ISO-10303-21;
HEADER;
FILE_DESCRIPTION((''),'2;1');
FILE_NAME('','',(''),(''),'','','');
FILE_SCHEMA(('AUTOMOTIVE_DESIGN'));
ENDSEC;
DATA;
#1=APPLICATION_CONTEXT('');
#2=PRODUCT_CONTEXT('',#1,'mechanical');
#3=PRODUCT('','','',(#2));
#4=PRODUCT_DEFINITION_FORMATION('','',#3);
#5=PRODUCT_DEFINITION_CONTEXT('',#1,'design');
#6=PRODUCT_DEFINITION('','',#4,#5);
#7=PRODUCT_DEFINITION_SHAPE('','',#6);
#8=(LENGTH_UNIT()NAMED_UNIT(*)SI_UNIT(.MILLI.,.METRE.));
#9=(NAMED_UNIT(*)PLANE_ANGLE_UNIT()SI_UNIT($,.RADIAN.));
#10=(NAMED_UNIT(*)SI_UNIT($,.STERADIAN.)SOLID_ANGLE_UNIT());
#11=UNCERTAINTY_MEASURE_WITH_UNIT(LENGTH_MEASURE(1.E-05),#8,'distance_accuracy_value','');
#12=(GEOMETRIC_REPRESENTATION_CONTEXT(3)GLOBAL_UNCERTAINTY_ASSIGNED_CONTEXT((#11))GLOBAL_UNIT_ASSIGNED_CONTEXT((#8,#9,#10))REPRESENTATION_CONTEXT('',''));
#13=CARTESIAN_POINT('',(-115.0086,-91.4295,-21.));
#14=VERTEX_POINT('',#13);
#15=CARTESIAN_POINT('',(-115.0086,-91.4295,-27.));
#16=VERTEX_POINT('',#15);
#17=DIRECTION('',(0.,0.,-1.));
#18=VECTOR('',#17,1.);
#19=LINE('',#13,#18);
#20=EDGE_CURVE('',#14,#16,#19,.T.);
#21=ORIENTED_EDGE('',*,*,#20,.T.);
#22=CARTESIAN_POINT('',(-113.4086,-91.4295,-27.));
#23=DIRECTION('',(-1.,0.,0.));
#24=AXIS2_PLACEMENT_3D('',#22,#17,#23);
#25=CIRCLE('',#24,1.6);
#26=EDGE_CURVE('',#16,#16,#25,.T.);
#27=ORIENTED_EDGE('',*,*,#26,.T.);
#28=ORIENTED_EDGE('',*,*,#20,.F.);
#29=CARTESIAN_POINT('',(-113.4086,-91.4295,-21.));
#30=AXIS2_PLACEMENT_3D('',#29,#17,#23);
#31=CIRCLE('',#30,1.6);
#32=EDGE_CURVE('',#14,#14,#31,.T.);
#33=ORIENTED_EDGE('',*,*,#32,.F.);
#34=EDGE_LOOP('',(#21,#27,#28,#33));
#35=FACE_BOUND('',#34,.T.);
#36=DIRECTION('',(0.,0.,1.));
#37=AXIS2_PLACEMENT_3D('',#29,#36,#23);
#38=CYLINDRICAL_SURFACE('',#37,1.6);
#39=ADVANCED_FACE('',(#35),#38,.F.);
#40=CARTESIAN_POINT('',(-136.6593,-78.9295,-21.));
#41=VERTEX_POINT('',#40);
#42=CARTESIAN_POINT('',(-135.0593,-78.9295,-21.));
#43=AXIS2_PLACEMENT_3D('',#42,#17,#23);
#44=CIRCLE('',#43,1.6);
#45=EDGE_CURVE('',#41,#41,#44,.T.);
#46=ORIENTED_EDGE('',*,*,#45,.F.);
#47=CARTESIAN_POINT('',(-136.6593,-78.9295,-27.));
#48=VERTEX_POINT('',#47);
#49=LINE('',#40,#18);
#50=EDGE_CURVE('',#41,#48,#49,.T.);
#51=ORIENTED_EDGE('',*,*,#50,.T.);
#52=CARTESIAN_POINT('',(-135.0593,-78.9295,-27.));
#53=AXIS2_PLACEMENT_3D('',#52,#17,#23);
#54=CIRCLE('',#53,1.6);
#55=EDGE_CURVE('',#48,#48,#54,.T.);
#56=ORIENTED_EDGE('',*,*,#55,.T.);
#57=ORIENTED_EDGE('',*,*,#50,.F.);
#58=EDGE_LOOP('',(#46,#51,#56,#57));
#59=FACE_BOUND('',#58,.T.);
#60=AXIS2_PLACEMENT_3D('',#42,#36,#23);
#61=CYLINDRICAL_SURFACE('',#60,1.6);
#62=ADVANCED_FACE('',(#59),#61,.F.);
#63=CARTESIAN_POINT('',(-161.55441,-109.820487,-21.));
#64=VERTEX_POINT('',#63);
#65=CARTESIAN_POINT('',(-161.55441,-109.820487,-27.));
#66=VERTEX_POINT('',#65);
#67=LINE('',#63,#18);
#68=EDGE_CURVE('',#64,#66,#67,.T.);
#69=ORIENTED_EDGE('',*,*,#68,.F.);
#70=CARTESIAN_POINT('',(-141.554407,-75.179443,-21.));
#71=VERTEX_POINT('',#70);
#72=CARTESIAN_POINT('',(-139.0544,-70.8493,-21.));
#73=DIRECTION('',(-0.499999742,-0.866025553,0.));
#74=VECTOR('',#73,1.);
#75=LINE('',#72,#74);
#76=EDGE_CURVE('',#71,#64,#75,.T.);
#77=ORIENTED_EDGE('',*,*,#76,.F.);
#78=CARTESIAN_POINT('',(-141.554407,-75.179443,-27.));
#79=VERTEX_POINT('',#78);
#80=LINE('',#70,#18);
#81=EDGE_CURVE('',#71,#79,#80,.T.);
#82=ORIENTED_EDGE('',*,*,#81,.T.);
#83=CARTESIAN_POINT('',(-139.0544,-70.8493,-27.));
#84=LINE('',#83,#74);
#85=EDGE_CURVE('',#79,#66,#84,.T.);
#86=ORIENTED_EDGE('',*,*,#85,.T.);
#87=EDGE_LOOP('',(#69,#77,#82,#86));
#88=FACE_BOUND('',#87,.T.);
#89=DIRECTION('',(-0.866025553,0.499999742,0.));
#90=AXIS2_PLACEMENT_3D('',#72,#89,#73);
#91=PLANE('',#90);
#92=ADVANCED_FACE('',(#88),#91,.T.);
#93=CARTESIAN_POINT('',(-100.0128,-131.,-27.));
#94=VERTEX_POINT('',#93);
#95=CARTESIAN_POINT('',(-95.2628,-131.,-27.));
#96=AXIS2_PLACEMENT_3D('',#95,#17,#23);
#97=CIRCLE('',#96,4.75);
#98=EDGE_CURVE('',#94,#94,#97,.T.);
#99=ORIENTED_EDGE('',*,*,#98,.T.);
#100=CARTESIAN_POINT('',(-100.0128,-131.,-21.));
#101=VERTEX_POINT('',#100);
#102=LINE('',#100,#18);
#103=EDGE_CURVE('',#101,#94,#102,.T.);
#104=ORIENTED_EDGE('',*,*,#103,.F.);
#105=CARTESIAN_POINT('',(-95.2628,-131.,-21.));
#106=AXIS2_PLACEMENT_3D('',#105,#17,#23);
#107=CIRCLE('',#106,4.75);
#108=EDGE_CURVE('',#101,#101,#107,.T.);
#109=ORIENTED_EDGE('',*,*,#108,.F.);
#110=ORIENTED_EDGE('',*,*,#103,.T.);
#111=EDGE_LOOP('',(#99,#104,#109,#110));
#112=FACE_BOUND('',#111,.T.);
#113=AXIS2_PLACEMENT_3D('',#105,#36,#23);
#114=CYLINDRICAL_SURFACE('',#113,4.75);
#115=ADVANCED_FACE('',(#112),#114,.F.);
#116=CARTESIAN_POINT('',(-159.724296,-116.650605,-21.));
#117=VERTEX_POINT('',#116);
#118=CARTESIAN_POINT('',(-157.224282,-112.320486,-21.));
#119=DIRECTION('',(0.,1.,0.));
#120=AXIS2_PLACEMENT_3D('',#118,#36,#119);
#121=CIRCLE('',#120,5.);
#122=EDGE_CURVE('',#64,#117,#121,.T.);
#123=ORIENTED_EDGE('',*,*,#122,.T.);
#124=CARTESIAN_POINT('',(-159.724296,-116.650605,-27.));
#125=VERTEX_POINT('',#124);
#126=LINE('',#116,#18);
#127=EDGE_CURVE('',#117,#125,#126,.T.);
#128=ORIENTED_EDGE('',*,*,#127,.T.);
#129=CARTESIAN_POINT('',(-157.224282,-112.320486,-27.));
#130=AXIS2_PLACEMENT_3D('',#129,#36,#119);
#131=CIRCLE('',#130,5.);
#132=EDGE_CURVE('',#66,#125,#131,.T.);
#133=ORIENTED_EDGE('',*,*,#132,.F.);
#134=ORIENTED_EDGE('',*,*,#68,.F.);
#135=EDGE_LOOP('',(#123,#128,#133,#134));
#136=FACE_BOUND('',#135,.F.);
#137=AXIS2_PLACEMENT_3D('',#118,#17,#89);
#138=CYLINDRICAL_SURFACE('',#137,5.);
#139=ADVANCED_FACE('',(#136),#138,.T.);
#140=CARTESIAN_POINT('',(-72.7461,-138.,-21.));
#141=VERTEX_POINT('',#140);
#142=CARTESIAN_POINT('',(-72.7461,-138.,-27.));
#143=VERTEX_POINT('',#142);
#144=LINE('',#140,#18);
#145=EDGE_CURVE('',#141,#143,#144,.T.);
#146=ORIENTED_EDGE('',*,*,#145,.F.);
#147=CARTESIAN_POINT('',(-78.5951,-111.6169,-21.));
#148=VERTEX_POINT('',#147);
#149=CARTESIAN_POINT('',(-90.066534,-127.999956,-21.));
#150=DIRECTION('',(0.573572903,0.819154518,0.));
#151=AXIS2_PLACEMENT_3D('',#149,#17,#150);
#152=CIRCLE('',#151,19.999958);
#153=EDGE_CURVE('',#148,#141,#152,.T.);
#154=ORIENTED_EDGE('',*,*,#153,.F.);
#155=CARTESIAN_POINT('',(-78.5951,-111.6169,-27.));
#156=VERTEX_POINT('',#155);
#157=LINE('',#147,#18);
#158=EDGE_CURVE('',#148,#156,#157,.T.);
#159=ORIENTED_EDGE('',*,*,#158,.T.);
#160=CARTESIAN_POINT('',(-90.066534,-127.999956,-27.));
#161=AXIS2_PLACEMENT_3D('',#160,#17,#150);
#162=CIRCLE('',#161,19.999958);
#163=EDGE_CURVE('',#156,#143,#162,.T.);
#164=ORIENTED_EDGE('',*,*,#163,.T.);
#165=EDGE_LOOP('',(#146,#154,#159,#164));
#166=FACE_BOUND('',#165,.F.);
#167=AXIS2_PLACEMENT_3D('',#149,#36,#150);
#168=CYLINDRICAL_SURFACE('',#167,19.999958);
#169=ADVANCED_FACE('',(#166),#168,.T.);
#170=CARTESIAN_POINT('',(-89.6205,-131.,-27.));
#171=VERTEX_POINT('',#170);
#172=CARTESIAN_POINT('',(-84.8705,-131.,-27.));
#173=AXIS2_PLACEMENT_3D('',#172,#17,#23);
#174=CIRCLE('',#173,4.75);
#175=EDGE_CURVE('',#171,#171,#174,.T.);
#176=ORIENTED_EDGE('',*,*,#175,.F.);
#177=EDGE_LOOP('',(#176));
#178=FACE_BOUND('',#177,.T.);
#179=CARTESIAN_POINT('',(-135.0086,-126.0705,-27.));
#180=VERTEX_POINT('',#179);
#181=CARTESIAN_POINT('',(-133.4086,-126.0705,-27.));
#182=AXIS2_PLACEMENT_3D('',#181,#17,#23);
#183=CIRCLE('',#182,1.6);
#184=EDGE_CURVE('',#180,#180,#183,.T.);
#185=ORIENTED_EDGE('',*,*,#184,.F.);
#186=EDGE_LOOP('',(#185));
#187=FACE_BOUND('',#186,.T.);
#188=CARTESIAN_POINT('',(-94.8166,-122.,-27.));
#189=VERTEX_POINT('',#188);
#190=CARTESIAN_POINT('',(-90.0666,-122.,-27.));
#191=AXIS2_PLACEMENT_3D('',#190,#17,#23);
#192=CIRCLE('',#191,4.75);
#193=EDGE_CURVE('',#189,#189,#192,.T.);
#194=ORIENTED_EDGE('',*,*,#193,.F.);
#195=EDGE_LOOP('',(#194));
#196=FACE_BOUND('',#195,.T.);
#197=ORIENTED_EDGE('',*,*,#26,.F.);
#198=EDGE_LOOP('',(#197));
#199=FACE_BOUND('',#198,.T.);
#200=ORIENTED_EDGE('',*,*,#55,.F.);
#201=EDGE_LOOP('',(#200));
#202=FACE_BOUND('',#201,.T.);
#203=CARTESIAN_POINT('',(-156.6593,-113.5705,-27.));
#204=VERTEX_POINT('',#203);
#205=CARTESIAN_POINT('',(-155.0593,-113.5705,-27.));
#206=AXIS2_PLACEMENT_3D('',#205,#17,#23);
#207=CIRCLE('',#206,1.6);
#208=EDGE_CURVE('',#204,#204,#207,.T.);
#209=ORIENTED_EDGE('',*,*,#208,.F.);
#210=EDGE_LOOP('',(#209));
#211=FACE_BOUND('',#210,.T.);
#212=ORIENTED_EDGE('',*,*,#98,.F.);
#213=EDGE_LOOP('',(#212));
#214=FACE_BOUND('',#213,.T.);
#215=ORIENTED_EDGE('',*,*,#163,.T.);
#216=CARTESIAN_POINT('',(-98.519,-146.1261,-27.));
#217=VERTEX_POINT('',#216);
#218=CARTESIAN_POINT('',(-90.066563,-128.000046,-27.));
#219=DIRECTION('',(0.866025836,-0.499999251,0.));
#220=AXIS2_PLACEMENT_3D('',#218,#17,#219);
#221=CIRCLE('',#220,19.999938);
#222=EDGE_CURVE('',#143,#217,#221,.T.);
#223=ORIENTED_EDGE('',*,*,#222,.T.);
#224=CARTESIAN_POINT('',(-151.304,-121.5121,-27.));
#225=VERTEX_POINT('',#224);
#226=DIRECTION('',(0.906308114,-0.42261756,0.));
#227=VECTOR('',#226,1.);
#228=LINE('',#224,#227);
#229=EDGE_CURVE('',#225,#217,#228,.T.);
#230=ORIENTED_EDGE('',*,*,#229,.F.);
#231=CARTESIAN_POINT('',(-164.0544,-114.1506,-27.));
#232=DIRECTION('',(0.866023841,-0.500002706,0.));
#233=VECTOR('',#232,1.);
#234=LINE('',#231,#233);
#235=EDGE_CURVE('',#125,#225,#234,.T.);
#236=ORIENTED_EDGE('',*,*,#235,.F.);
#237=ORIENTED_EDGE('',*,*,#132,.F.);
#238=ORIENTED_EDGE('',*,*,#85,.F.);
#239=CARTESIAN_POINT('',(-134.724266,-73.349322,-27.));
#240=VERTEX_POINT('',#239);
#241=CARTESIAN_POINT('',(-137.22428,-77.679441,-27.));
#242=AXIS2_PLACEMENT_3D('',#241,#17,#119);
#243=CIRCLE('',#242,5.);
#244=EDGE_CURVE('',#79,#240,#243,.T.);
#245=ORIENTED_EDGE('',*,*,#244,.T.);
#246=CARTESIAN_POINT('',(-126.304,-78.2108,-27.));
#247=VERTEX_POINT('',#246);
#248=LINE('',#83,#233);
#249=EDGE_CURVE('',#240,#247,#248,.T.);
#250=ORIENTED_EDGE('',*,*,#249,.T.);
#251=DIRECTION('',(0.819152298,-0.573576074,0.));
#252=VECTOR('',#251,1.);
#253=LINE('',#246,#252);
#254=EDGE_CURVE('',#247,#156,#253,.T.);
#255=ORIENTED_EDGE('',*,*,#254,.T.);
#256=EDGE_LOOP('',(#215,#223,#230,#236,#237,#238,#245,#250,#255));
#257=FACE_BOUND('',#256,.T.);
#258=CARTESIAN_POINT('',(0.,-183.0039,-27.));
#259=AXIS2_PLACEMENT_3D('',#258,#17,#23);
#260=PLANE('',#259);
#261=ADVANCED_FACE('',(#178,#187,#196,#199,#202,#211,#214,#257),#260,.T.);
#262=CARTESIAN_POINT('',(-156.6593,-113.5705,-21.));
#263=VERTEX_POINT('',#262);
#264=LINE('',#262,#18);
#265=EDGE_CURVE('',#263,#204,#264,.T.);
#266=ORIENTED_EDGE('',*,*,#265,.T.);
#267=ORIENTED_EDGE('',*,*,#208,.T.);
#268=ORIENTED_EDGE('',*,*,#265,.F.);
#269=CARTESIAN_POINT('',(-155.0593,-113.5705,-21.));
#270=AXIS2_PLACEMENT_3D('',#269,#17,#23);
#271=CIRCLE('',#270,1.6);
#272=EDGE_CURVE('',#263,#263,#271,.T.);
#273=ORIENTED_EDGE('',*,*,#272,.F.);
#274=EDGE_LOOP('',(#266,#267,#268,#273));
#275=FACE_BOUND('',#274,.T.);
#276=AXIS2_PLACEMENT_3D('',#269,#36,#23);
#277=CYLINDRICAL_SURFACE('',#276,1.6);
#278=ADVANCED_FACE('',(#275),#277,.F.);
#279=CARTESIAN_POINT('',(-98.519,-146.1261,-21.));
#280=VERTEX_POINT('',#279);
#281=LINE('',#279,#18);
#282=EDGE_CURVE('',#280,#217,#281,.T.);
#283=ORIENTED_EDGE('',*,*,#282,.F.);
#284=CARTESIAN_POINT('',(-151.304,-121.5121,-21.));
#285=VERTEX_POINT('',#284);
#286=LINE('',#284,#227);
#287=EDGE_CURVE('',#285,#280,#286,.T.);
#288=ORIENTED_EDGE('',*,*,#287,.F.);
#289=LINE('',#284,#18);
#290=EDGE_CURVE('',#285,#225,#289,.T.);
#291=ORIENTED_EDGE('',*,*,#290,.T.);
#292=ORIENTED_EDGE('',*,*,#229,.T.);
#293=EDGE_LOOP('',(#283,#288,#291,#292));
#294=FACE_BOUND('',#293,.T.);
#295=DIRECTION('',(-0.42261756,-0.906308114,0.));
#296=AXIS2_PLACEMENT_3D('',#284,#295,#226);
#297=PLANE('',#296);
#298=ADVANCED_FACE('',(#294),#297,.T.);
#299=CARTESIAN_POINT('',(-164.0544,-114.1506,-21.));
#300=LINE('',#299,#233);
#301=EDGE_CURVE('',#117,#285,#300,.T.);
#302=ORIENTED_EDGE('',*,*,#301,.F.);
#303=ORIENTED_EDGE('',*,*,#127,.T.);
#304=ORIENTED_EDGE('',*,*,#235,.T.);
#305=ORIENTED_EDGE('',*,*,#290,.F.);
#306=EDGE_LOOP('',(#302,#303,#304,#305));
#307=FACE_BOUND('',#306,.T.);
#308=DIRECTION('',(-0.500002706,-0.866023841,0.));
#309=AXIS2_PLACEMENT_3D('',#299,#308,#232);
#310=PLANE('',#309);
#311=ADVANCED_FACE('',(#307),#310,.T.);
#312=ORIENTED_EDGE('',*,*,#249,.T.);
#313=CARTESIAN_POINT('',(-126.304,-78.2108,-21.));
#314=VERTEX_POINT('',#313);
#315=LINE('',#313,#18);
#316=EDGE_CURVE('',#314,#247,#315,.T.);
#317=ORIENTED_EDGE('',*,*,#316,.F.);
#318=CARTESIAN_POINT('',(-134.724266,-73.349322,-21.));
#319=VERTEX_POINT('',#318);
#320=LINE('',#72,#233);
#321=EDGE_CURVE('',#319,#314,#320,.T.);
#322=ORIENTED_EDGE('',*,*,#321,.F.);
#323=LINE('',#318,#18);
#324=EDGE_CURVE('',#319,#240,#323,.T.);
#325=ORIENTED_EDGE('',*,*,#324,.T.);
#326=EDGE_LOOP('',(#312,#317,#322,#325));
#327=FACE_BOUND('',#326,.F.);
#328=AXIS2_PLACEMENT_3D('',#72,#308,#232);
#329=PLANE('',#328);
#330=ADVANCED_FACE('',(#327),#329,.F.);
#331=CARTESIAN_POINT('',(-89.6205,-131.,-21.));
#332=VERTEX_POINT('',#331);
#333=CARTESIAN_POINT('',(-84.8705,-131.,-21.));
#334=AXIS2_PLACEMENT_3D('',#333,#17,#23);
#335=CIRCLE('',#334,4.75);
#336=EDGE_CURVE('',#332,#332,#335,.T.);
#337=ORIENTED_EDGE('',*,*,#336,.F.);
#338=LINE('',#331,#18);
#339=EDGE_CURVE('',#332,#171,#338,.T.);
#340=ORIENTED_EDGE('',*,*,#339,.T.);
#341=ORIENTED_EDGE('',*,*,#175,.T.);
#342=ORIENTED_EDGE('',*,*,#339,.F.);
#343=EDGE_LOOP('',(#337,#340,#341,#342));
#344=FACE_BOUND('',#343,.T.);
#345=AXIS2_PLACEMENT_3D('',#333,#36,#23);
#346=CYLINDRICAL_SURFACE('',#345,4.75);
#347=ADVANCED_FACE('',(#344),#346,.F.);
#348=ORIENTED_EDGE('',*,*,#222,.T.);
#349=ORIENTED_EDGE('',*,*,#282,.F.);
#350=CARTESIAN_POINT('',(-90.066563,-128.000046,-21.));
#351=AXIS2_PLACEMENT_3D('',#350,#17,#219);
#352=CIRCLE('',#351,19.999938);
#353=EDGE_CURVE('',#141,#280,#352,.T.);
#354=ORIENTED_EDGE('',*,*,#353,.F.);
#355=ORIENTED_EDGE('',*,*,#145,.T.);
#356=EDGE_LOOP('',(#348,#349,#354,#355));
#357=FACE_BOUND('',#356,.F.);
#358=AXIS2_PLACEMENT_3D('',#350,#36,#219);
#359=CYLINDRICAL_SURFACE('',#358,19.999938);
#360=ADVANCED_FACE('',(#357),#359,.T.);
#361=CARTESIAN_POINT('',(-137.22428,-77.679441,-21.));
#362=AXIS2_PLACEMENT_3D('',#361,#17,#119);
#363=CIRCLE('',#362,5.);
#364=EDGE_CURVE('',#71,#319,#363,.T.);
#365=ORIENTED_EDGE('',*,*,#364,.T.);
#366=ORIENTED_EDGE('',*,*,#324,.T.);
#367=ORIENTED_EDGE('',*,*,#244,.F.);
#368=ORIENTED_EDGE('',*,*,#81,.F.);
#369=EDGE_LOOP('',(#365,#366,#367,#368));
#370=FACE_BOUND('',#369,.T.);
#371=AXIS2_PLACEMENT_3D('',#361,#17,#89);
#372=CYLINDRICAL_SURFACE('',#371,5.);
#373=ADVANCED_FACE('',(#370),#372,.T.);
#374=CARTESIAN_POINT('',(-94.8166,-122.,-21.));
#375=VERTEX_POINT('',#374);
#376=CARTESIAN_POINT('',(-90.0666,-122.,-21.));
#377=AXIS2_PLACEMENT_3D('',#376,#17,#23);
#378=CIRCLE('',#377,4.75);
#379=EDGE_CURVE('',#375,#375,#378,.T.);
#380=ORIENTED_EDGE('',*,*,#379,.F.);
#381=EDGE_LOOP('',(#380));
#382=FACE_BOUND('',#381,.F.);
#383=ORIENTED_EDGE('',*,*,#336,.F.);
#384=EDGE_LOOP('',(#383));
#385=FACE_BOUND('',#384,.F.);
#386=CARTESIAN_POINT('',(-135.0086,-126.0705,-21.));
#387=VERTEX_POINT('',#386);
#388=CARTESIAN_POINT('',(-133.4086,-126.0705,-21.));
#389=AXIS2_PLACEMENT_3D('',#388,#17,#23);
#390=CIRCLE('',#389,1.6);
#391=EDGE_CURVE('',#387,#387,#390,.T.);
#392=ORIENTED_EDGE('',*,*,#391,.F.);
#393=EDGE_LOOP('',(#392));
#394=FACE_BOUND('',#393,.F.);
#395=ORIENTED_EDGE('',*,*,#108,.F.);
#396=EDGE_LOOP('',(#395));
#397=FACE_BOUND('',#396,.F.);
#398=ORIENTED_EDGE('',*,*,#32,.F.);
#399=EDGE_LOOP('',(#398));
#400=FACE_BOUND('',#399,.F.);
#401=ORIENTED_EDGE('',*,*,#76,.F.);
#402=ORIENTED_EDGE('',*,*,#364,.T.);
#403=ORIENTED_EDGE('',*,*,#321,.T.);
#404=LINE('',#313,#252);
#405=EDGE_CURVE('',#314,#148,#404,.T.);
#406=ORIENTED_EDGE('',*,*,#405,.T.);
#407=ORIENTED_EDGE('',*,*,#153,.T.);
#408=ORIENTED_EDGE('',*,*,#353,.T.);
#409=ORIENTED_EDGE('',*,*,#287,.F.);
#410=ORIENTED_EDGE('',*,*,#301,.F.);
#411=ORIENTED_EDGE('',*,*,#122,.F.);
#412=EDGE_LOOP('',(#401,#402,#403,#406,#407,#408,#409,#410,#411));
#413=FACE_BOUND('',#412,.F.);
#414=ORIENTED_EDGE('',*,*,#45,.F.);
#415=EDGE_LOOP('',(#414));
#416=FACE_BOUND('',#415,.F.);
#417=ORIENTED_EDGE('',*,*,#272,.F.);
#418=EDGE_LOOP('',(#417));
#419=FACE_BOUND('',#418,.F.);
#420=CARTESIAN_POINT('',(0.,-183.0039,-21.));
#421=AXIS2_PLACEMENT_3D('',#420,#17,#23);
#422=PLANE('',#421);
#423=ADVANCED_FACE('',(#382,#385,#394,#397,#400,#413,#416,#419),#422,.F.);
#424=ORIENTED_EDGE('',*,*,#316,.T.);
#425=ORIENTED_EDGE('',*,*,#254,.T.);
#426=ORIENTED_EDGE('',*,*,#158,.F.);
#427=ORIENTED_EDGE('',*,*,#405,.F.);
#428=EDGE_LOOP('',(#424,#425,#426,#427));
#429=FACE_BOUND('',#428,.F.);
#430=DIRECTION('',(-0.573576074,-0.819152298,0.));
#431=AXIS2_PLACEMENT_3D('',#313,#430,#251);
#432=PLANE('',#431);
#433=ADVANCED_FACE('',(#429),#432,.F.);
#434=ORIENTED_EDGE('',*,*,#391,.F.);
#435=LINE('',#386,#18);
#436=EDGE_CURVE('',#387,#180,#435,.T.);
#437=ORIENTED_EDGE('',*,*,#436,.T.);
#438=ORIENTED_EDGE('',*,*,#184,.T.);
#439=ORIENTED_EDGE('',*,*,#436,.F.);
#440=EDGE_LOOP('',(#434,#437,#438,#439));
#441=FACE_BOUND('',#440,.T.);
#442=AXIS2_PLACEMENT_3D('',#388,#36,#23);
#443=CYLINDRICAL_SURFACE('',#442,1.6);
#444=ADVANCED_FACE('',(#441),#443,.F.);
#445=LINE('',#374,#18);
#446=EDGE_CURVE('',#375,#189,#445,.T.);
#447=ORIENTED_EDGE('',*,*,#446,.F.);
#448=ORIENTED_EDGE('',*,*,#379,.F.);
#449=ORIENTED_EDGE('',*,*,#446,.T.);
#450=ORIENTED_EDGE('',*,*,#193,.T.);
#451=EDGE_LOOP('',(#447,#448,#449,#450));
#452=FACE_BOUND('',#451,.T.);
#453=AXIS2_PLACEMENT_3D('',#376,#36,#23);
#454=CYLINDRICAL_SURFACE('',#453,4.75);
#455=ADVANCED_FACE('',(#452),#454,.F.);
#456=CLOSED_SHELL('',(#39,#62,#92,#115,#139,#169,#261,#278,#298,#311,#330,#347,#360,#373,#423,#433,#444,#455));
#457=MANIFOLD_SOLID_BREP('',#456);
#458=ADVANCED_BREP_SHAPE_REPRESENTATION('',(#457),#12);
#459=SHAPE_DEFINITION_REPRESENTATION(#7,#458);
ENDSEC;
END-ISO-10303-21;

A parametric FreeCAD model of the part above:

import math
import FreeCAD as App
import Part
import Sketcher

V = App.Vector
Q = App.Units.Quantity


def edges_at(feature, points):
    """Names of the edges that pass closest to the given points."""
    edges = feature.Shape.Edges
    near = lambda p: min(range(len(edges)), key=lambda i: edges[i].distToShape(Part.Vertex(*p))[0])
    return sorted({f"Edge{near(p) + 1}" for p in points})

doc = App.newDocument("Part")
params = doc.addObject("Spreadsheet::Sheet", "Params")
for row, (alias, value) in enumerate([
    ("sketch1_radius", "20 mm"),
    ("sketch1_diameter", "9.5 mm"),
    ("sketch1_diameter2", "3.2 mm"),
    ("pad1_length", "6 mm"),
    ("fillet_radius", "5 mm"),
], start=1):
    params.set(f"A{row}", alias)
    params.set(f"B{row}", "=" + value)
    params.setAlias(f"B{row}", alias)

body = doc.addObject("PartDesign::Body", "Body")

sketch1 = body.newObject("Sketcher::SketchObject", "Sketch")
sketch1.AttachmentSupport = (doc.getObject("XY_Plane"), [""])
sketch1.MapMode = "FlatFace"
sketch1.AttachmentOffset = App.Placement(V(0, 0, -21), App.Rotation())
sketch1.addGeometry([
    Part.LineSegment(V(-164.1, -114.2, 0), V(-139.1, -70.8, 0)),
    Part.LineSegment(V(-139.1, -70.8, 0), V(-126.3, -78.2, 0)),
    Part.LineSegment(V(-126.3, -78.2, 0), V(-78.6, -111.6, 0)),
    Part.ArcOfCircle(Part.Circle(V(-90.1, -128, 0), V(0, 0, 1), 20), math.radians(-30), math.radians(55)),
    Part.ArcOfCircle(Part.Circle(V(-90.1, -128, 0), V(0, 0, 1), 20), math.radians(-115), math.radians(-30)),
    Part.LineSegment(V(-98.5, -146.1, 0), V(-151.3, -121.5, 0)),
    Part.LineSegment(V(-151.3, -121.5, 0), V(-164.1, -114.2, 0)),
    Part.Circle(V(-84.9, -131, 0), V(0, 0, 1), 4.8),
    Part.Circle(V(-95.3, -131, 0), V(0, 0, 1), 4.8),
    Part.Circle(V(-90.1, -122, 0), V(0, 0, 1), 4.8),
    Part.Circle(V(-133.4, -126.1, 0), V(0, 0, 1), 1.6),
    Part.Circle(V(-155.1, -113.6, 0), V(0, 0, 1), 1.6),
    Part.Circle(V(-113.4, -91.4, 0), V(0, 0, 1), 1.6),
    Part.Circle(V(-135.1, -78.9, 0), V(0, 0, 1), 1.6),
], False)
sketch1.addConstraint([
    Sketcher.Constraint("Coincident", 0, 2, 1, 1),
    Sketcher.Constraint("Coincident", 1, 2, 2, 1),
    Sketcher.Constraint("Tangent", 2, 2, 3, 2),
    Sketcher.Constraint("Tangent", 3, 1, 4, 2),
    Sketcher.Constraint("Tangent", 4, 1, 5, 1),
    Sketcher.Constraint("Coincident", 5, 2, 6, 1),
    Sketcher.Constraint("Coincident", 6, 2, 0, 1),
    Sketcher.Constraint("Equal", 3, 4),
    Sketcher.Constraint("Equal", 7, 8),
    Sketcher.Constraint("Equal", 8, 9),
    Sketcher.Constraint("Equal", 10, 11),
    Sketcher.Constraint("Equal", 11, 12),
    Sketcher.Constraint("Equal", 12, 13),
    Sketcher.Constraint("Perpendicular", 0, 1),
    Sketcher.Constraint("Parallel", 1, 6),
    Sketcher.Constraint("Horizontal", 7, 3, 8, 3),
    Sketcher.Constraint("Vertical", 4, 3, 9, 3),
    Sketcher.Constraint("Equal", 2, 5),
    Sketcher.Constraint("Equal", 1, 6),
    Sketcher.Constraint("Radius", 3, 20.0),
    Sketcher.Constraint("Diameter", 7, 9.5),
    Sketcher.Constraint("DistanceX", 10, 3, 12, 3, 20.0),
    Sketcher.Constraint("DistanceX", 11, 3, 13, 3, 20.0),
    Sketcher.Constraint("DistanceX", 5, 2, 1, 2, 25.0),
    Sketcher.Constraint("Diameter", 10, 3.2),
    Sketcher.Constraint("Angle", 0, Q("60 deg")),
    Sketcher.Constraint("Angle", 2, Q("-35 deg")),
    Sketcher.Constraint("DistanceY", 3, 3, -1, 1, 128.0),
    Sketcher.Constraint("DistanceY", 7, 3, -1, 1, 131.0),
    Sketcher.Constraint("DistanceY", 9, 3, -1, 1, 122.0),
    Sketcher.Constraint("DistanceY", 3, 1, -1, 1, 138.0),
    Sketcher.Constraint("DistanceY", 10, 3, 11, 3, 12.5),
    Sketcher.Constraint("DistanceY", 12, 3, 13, 3, 12.5),
    Sketcher.Constraint("DistanceY", 6, 2, 11, 3, 0.58),
    Sketcher.Constraint("Distance", 1, 14.723),
    Sketcher.Constraint("DistanceX", 1, 2, -1, 1, 126.304),
    Sketcher.Constraint("DistanceX", 3, 3, 7, 3, 5.196),
    Sketcher.Constraint("DistanceX", 10, 3, 3, 3, 43.342),
    Sketcher.Constraint("DistanceY", 10, 3, 12, 3, 34.641),
    Sketcher.Constraint("DistanceX", 0, 2, 13, 3, 3.995),
    Sketcher.Constraint("DistanceX", 8, 3, -1, 1, 95.2628),
])
sketch1.setExpression("Constraints[19]", "Params.sketch1_radius")
sketch1.setExpression("Constraints[20]", "Params.sketch1_diameter")
sketch1.setExpression("Constraints[24]", "Params.sketch1_diameter2")
pad1 = body.newObject("PartDesign::Pad", "Pad")
pad1.Profile = sketch1
pad1.setExpression("Length", "Params.pad1_length")
pad1.Reversed = True
doc.recompute()

fillet = body.newObject("PartDesign::Fillet", "Fillet")
fillet.Base = (pad1, edges_at(pad1, [(-164.054, -114.151, -24), (-139.054, -70.849, -24)]))
fillet.setExpression("Radius", "Params.fillet_radius")

doc.recompute()
